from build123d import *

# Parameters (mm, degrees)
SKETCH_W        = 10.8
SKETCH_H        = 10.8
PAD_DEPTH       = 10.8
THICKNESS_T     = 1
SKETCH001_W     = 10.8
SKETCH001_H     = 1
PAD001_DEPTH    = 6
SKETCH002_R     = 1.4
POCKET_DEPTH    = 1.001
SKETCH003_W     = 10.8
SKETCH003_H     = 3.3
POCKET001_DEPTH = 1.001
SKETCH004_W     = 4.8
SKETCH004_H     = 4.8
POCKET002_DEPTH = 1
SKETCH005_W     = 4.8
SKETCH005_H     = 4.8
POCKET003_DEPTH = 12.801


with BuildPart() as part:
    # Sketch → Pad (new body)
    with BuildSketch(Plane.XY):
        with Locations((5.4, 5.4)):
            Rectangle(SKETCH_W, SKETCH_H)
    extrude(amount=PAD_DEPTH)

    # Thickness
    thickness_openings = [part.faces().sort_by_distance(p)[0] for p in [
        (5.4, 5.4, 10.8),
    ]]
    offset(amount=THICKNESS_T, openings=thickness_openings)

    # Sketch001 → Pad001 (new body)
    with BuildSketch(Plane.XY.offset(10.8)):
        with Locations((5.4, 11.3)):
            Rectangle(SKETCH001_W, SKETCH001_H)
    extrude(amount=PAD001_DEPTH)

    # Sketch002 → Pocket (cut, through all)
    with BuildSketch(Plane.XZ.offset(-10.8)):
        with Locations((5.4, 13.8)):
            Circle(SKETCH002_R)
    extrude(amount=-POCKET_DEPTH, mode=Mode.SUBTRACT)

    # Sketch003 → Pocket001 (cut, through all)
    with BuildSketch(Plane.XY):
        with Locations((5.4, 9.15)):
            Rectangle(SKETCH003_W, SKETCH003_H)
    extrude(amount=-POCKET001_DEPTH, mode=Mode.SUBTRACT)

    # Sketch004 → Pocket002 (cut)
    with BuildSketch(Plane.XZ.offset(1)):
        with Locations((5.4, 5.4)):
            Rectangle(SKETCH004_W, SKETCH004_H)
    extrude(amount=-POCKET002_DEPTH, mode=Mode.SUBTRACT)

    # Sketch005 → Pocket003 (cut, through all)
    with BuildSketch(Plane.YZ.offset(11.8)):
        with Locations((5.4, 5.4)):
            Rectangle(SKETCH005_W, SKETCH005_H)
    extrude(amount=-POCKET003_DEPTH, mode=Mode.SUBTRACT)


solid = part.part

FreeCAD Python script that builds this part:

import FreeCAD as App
import Part
import Sketcher

V = App.Vector


def faces_at(feature, points):
    """Names of the faces that lie closest to the given points."""
    faces = feature.Shape.Faces
    near = lambda p: min(range(len(faces)), key=lambda i: faces[i].distToShape(Part.Vertex(*p))[0])
    return sorted({f"Face{near(p) + 1}" for p in points})

doc = App.newDocument("Part")
body = doc.addObject("PartDesign::Body", "Body")

# Sketch on XY plane
sketch1 = body.newObject("Sketcher::SketchObject", "Sketch")
sketch1.AttachmentSupport = (doc.getObject("XY_Plane"), [""])
sketch1.MapMode = "FlatFace"
sketch1.addGeometry(Part.LineSegment(V(0, 11, 0), V(0, 0, 0)), False)
sketch1.addGeometry(Part.LineSegment(V(0, 0, 0), V(11, 0, 0)), False)
sketch1.addGeometry(Part.LineSegment(V(11, 0, 0), V(11, 11, 0)), False)
sketch1.addGeometry(Part.LineSegment(V(11, 11, 0), V(0, 11, 0)), False)
sketch1.addConstraint(Sketcher.Constraint("Coincident", 0, 2, 1, 1))
sketch1.addConstraint(Sketcher.Constraint("Coincident", 1, 2, 2, 1))
sketch1.addConstraint(Sketcher.Constraint("Coincident", 2, 2, 3, 1))
sketch1.addConstraint(Sketcher.Constraint("Coincident", 3, 2, 0, 1))
sketch1.addConstraint(Sketcher.Constraint("Vertical", 0))
sketch1.addConstraint(Sketcher.Constraint("Horizontal", 1))
sketch1.addConstraint(Sketcher.Constraint("Vertical", 2))
sketch1.addConstraint(Sketcher.Constraint("Horizontal", 3))
sketch1.addConstraint(Sketcher.Constraint("Coincident", 0, 2, -1, 1))
sketch1.addConstraint(Sketcher.Constraint("Equal", 3, 0))
sketch1.addConstraint(Sketcher.Constraint("DistanceX", 1, 1, 1, 2, 10.8))
pad1 = body.newObject("PartDesign::Pad", "Pad")
pad1.Profile = sketch1
pad1.Length = 10.8
doc.recompute()

thickness = body.newObject("PartDesign::Thickness", "Thickness")
thickness.Base = (pad1, faces_at(pad1, [(5.4, 5.4, 10.8)]))
thickness.Value = 1
thickness.Reversed = False
thickness.Join = "Arc"

# Sketch on XY plane
sketch2 = body.newObject("Sketcher::SketchObject", "Sketch001")
sketch2.AttachmentSupport = (doc.getObject("XY_Plane"), [""])
sketch2.MapMode = "FlatFace"
sketch2.AttachmentOffset = App.Placement(V(0, 0, 10.8), App.Rotation())
sketch2.addGeometry(Part.LineSegment(V(0, 11.8, 0), V(0, 10.8, 0)), False)
sketch2.addGeometry(Part.LineSegment(V(0, 10.8, 0), V(10.8, 10.8, 0)), False)
sketch2.addGeometry(Part.LineSegment(V(10.8, 10.8, 0), V(10.8, 11.8, 0)), False)
sketch2.addGeometry(Part.LineSegment(V(10.8, 11.8, 0), V(0, 11.8, 0)), False)
sketch2.addConstraint(Sketcher.Constraint("Coincident", 0, 2, 1, 1))
sketch2.addConstraint(Sketcher.Constraint("Coincident", 1, 2, 2, 1))
sketch2.addConstraint(Sketcher.Constraint("Coincident", 2, 2, 3, 1))
sketch2.addConstraint(Sketcher.Constraint("Coincident", 3, 2, 0, 1))
sketch2.addConstraint(Sketcher.Constraint("Vertical", 0))
sketch2.addConstraint(Sketcher.Constraint("Horizontal", 1))
sketch2.addConstraint(Sketcher.Constraint("Vertical", 2))
sketch2.addConstraint(Sketcher.Constraint("Horizontal", 3))
sketch2.addConstraint(Sketcher.Constraint("PointOnObject", 0, 2, -2))
sketch2.addConstraint(Sketcher.Constraint("DistanceY", 0, 2, 0, 1, 1.0))
sketch2.addConstraint(Sketcher.Constraint("DistanceX", 1, 1, 1, 2, 10.8))
sketch2.addConstraint(Sketcher.Constraint("DistanceY", -1, 1, 0, 2, 10.8))
pad2 = body.newObject("PartDesign::Pad", "Pad001")
pad2.Profile = sketch2
pad2.Length = 6

# Sketch on XZ plane
sketch3 = body.newObject("Sketcher::SketchObject", "Sketch002")
sketch3.AttachmentSupport = (doc.getObject("XZ_Plane"), [""])
sketch3.MapMode = "FlatFace"
sketch3.AttachmentOffset = App.Placement(V(0, 0, -10.8), App.Rotation())
sketch3.addGeometry(Part.Circle(V(5.4, 13.8, 0), V(0, 0, 1), 1.4), False)
sketch3.addConstraint(Sketcher.Constraint("Diameter", 0, 2.8))
sketch3.addConstraint(Sketcher.Constraint("DistanceX", -1, 1, 0, 3, 5.4))
sketch3.addConstraint(Sketcher.Constraint("DistanceY", -1, 1, 0, 3, 13.8))
pocket1 = body.newObject("PartDesign::Pocket", "Pocket")
pocket1.Profile = sketch3
pocket1.Type = "ThroughAll"

# Sketch on XY plane
sketch4 = body.newObject("Sketcher::SketchObject", "Sketch003")
sketch4.AttachmentSupport = (doc.getObject("XY_Plane"), [""])
sketch4.MapMode = "FlatFace"
sketch4.addGeometry(Part.LineSegment(V(0, 10.8, 0), V(0, 7.5, 0)), False)
sketch4.addGeometry(Part.LineSegment(V(0, 7.5, 0), V(10.8, 7.5, 0)), False)
sketch4.addGeometry(Part.LineSegment(V(10.8, 7.5, 0), V(10.8, 10.8, 0)), False)
sketch4.addGeometry(Part.LineSegment(V(10.8, 10.8, 0), V(0, 10.8, 0)), False)
sketch4.addConstraint(Sketcher.Constraint("Coincident", 0, 2, 1, 1))
sketch4.addConstraint(Sketcher.Constraint("Coincident", 1, 2, 2, 1))
sketch4.addConstraint(Sketcher.Constraint("Coincident", 2, 2, 3, 1))
sketch4.addConstraint(Sketcher.Constraint("Coincident", 3, 2, 0, 1))
sketch4.addConstraint(Sketcher.Constraint("Vertical", 0))
sketch4.addConstraint(Sketcher.Constraint("Horizontal", 1))
sketch4.addConstraint(Sketcher.Constraint("Vertical", 2))
sketch4.addConstraint(Sketcher.Constraint("Horizontal", 3))
sketch4.addConstraint(Sketcher.Constraint("PointOnObject", 0, 2, -2))
sketch4.addConstraint(Sketcher.Constraint("DistanceX", 1, 1, 1, 2, 10.8))
sketch4.addConstraint(Sketcher.Constraint("DistanceY", 0, 2, 0, 1, 3.3))
sketch4.addConstraint(Sketcher.Constraint("DistanceY", -1, 1, 0, 2, 7.5))
pocket2 = body.newObject("PartDesign::Pocket", "Pocket001")
pocket2.Profile = sketch4
pocket2.Type = "ThroughAll"

# Sketch on XZ plane
sketch5 = body.newObject("Sketcher::SketchObject", "Sketch004")
sketch5.AttachmentSupport = (doc.getObject("XZ_Plane"), [""])
sketch5.MapMode = "FlatFace"
sketch5.AttachmentOffset = App.Placement(V(0, 0, 1), App.Rotation())
sketch5.addGeometry(Part.LineSegment(V(3, 7.8, 0), V(3, 3, 0)), False)
sketch5.addGeometry(Part.LineSegment(V(3, 3, 0), V(7.8, 3, 0)), False)
sketch5.addGeometry(Part.LineSegment(V(7.8, 3, 0), V(7.8, 7.8, 0)), False)
sketch5.addGeometry(Part.LineSegment(V(7.8, 7.8, 0), V(3, 7.8, 0)), False)
sketch5.addConstraint(Sketcher.Constraint("Coincident", 0, 2, 1, 1))
sketch5.addConstraint(Sketcher.Constraint("Coincident", 1, 2, 2, 1))
sketch5.addConstraint(Sketcher.Constraint("Coincident", 2, 2, 3, 1))
sketch5.addConstraint(Sketcher.Constraint("Coincident", 3, 2, 0, 1))
sketch5.addConstraint(Sketcher.Constraint("Vertical", 0))
sketch5.addConstraint(Sketcher.Constraint("Horizontal", 1))
sketch5.addConstraint(Sketcher.Constraint("Vertical", 2))
sketch5.addConstraint(Sketcher.Constraint("Horizontal", 3))
sketch5.addConstraint(Sketcher.Constraint("Equal", 3, 0))
sketch5.addConstraint(Sketcher.Constraint("DistanceX", 1, 1, 1, 2, 4.8))
sketch5.addConstraint(Sketcher.Constraint("DistanceX", -1, 1, 0, 2, 3.0))
sketch5.addConstraint(Sketcher.Constraint("DistanceY", -1, 1, 0, 2, 3.0))
pocket3 = body.newObject("PartDesign::Pocket", "Pocket002")
pocket3.Profile = sketch5
pocket3.Length = 1

# Sketch on YZ plane
sketch6 = body.newObject("Sketcher::SketchObject", "Sketch005")
sketch6.AttachmentSupport = (doc.getObject("YZ_Plane"), [""])
sketch6.MapMode = "FlatFace"
sketch6.AttachmentOffset = App.Placement(V(0, 0, 11.8), App.Rotation())
sketch6.addGeometry(Part.LineSegment(V(3, 7.8, 0), V(3, 3, 0)), False)
sketch6.addGeometry(Part.LineSegment(V(3, 3, 0), V(7.8, 3, 0)), False)
sketch6.addGeometry(Part.LineSegment(V(7.8, 3, 0), V(7.8, 7.8, 0)), False)
sketch6.addGeometry(Part.LineSegment(V(7.8, 7.8, 0), V(3, 7.8, 0)), False)
sketch6.addConstraint(Sketcher.Constraint("Coincident", 0, 2, 1, 1))
sketch6.addConstraint(Sketcher.Constraint("Coincident", 1, 2, 2, 1))
sketch6.addConstraint(Sketcher.Constraint("Coincident", 2, 2, 3, 1))
sketch6.addConstraint(Sketcher.Constraint("Coincident", 3, 2, 0, 1))
sketch6.addConstraint(Sketcher.Constraint("Vertical", 0))
sketch6.addConstraint(Sketcher.Constraint("Horizontal", 1))
sketch6.addConstraint(Sketcher.Constraint("Vertical", 2))
sketch6.addConstraint(Sketcher.Constraint("Horizontal", 3))
sketch6.addConstraint(Sketcher.Constraint("Equal", 3, 0))
sketch6.addConstraint(Sketcher.Constraint("DistanceX", 1, 1, 1, 2, 4.8))
sketch6.addConstraint(Sketcher.Constraint("DistanceX", -1, 1, 0, 2, 3.0))
sketch6.addConstraint(Sketcher.Constraint("DistanceY", -1, 1, 0, 2, 3.0))
pocket4 = body.newObject("PartDesign::Pocket", "Pocket003")
pocket4.Profile = sketch6
pocket4.Type = "ThroughAll"

doc.recompute()
